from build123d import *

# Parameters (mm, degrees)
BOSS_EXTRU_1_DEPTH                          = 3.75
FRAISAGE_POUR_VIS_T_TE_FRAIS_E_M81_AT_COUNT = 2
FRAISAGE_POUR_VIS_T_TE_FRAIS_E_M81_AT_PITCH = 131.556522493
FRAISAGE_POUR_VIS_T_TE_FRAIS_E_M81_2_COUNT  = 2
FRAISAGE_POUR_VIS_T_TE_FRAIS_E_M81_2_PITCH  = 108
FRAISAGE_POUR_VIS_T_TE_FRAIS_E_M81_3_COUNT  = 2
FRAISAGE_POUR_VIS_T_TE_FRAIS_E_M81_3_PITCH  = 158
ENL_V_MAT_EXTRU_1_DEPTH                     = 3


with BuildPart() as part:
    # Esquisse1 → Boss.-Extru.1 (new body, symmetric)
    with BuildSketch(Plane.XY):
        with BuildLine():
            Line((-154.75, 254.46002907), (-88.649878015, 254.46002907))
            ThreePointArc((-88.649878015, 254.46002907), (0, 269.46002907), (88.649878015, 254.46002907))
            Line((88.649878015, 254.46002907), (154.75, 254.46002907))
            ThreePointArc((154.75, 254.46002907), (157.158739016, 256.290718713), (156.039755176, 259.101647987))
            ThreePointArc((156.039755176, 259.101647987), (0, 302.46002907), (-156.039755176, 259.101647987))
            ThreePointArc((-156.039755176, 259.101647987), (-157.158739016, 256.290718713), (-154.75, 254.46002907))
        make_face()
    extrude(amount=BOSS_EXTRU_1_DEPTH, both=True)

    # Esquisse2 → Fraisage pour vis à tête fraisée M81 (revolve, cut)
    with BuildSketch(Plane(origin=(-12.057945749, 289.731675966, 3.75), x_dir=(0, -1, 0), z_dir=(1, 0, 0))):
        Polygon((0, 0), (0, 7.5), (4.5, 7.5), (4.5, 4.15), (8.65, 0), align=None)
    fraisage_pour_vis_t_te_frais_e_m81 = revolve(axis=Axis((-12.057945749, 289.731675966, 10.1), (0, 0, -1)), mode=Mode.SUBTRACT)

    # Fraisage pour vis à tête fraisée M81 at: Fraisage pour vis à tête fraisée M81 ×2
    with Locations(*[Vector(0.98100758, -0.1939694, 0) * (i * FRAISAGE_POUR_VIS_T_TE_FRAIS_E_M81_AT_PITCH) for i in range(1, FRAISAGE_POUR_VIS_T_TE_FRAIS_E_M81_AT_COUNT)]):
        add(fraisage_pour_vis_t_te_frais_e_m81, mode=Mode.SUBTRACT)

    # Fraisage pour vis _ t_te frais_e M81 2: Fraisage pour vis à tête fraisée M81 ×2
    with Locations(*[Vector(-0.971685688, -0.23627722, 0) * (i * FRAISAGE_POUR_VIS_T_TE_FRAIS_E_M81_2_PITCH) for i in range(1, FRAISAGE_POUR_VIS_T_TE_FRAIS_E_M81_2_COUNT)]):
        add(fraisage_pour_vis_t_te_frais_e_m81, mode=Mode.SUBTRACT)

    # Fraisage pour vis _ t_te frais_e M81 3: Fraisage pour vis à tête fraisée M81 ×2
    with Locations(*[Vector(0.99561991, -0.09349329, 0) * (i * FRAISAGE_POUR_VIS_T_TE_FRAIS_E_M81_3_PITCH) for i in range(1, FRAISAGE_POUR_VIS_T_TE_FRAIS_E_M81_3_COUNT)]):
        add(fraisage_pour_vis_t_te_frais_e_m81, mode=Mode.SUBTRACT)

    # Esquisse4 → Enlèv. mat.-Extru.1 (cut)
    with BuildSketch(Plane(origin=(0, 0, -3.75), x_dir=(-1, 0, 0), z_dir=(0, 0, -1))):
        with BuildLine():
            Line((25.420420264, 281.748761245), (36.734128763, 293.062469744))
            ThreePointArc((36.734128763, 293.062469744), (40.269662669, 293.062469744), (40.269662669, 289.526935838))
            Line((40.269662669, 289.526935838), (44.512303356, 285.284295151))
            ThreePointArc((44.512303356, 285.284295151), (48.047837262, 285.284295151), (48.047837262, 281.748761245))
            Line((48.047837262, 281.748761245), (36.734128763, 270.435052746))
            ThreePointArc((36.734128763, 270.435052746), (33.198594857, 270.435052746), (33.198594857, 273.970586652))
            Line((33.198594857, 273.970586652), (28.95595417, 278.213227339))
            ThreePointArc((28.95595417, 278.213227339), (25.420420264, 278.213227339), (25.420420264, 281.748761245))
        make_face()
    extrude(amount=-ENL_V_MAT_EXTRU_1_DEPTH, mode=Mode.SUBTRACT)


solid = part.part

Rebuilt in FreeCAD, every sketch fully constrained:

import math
import FreeCAD as App
import Part
import Sketcher

V = App.Vector
Q = App.Units.Quantity


def add_polygon(sketch, points):
    """Adds a closed chain of lines whose ends are joined by coincident constraints."""
    first, n = sketch.GeometryCount, len(points)
    for a, b in zip(points, points[1:] + points[:1]):
        sketch.addGeometry(Part.LineSegment(App.Vector(*a, 0), App.Vector(*b, 0)), False)
    for i in range(n):
        sketch.addConstraint(Sketcher.Constraint("Coincident", first + i, 2, first + (i + 1) % n, 1))

doc = App.newDocument("Part")
body = doc.addObject("PartDesign::Body", "Body")

# Sketch on XY plane
sketch1 = doc.addObject("Sketcher::SketchObject", "Sketch")
body.addObject(sketch1)
sketch1.AttachmentSupport = (doc.XY_Plane, [""])
sketch1.MapMode = "FlatFace"
sketch1.addGeometry([
    Part.LineSegment(V(-154.8, 254.5, 0), V(-88.6, 254.5, 0)),  # 0
    Part.ArcOfCircle(Part.Circle(V(0, 0, 0), V(0, 0, 1), 269.5), math.radians(71), math.radians(109)),  # 1
    Part.LineSegment(V(88.6, 254.5, 0), V(154.8, 254.5, 0)),  # 2
    Part.ArcOfCircle(Part.Circle(V(154.8, 257, 0), V(0, 0, 1), 2.5), math.radians(-90), math.radians(59)),  # 3
    Part.ArcOfCircle(Part.Circle(V(0, 0, 0), V(0, 0, 1), 302.5), math.radians(59), math.radians(121)),  # 4
    Part.ArcOfCircle(Part.Circle(V(-154.8, 257, 0), V(0, 0, 1), 2.5), math.radians(121), math.radians(270)),  # 5
], False)
sketch1.addConstraint([
    Sketcher.Constraint("Coincident", 0, 2, 1, 2),
    Sketcher.Constraint("Coincident", 1, 1, 2, 1),
    Sketcher.Constraint("Tangent", 2, 2, 3, 1),
    Sketcher.Constraint("Tangent", 3, 2, 4, 1),
    Sketcher.Constraint("Tangent", 4, 2, 5, 1),
    Sketcher.Constraint("Tangent", 5, 2, 0, 1),
    Sketcher.Constraint("Horizontal", 0),
    Sketcher.Constraint("Horizontal", 2),
    Sketcher.Constraint("Coincident", 1, 3, -1, 1),
    Sketcher.Constraint("Coincident", 4, 3, -1, 1),
    Sketcher.Constraint("Equal", 3, 5),
    Sketcher.Constraint("Horizontal", 3, 3, 5, 3),
    Sketcher.Constraint("Radius", 3, Q("2.5 mm")),
    Sketcher.Constraint("DistanceX", 5, 3, 3, 3, Q("309.5 mm")),
    Sketcher.Constraint("Radius", 1, Q("269.460029 mm")),
    Sketcher.Constraint("Radius", 4, Q("302.460029 mm")),
])
pad1 = doc.addObject("PartDesign::Pad", "Pad")
body.addObject(pad1)
pad1.Profile = sketch1
pad1.Length = 7.5
pad1.Midplane = True

# Sketch on YZ plane
sketch2 = doc.addObject("Sketcher::SketchObject", "Sketch001")
body.addObject(sketch2)
sketch2.AttachmentSupport = (doc.YZ_Plane, [""])
sketch2.MapMode = "FlatFace"
sketch2.AttachmentOffset = App.Placement(V(0, 0, -12.057946), App.Rotation())
add_polygon(sketch2, [(289.7, -3.8), (289.7, 3.8), (281.1, 3.8), (285.2, -0.4), (285.2, -3.8)])  # lines 0-4
sketch2.addGeometry(Part.LineSegment(V(289.7, 3.8, 0), V(289.7, -3.8, 0)), True)  # axis
sketch2.addConstraint([
    Sketcher.Constraint("Vertical", 0),
    Sketcher.Constraint("Horizontal", 1),
    Sketcher.Constraint("Vertical", 3),
    Sketcher.Constraint("Horizontal", 4),
    Sketcher.Constraint("Vertical", 5),
    Sketcher.Constraint("Coincident", 5, 1, 0, 2),
    Sketcher.Constraint("Horizontal", 3, 2, 5, 2),
    Sketcher.Constraint("Angle", 2, Q("-45 deg")),
    Sketcher.Constraint("DistanceX", 4, 1, 4, 2, Q("4.5 mm")),
    Sketcher.Constraint("DistanceY", 0, 1, 0, 2, Q("7.5 mm")),
    Sketcher.Constraint("DistanceX", 1, 2, 1, 1, Q("8.65 mm")),
    Sketcher.Constraint("DistanceY", 2, 2, -1, 1, Q("0.4 mm")),
    Sketcher.Constraint("DistanceX", -1, 1, 0, 2, Q("289.731676 mm")),
])
groove = doc.addObject("PartDesign::Groove", "Groove")
body.addObject(groove)
groove.Profile = sketch2
groove.ReferenceAxis = (sketch2, ["Axis0"])
groove.Angle = 360
doc.recompute()

datumline = doc.addObject("PartDesign::Line", "DatumLine")
body.addObject(datumline)
datumline.Placement = App.Placement(V(0, 0, 0), App.Rotation(V(0, 0, 1), V(0.98100758, -0.1939694, 0)))
linearpattern = doc.addObject("PartDesign::LinearPattern", "LinearPattern")
body.addObject(linearpattern)
linearpattern.Originals = [groove]
linearpattern.Direction = (datumline, [""])
linearpattern.Mode = "offset"
linearpattern.Offset = 131.556523
linearpattern.Occurrences = 2
body.Tip = linearpattern
doc.recompute()

datumline2 = doc.addObject("PartDesign::Line", "DatumLine001")
body.addObject(datumline2)
datumline2.Placement = App.Placement(V(0, 0, 0), App.Rotation(V(0, 0, 1), V(-0.971685688, -0.23627722, 0)))
linearpattern2 = doc.addObject("PartDesign::LinearPattern", "LinearPattern001")
body.addObject(linearpattern2)
linearpattern2.Originals = [groove]
linearpattern2.Direction = (datumline2, [""])
linearpattern2.Mode = "offset"
linearpattern2.Offset = 108
linearpattern2.Occurrences = 2
body.Tip = linearpattern2
doc.recompute()

datumline3 = doc.addObject("PartDesign::Line", "DatumLine002")
body.addObject(datumline3)
datumline3.Placement = App.Placement(V(0, 0, 0), App.Rotation(V(0, 0, 1), V(0.99561991, -0.09349329, 0)))
linearpattern3 = doc.addObject("PartDesign::LinearPattern", "LinearPattern002")
body.addObject(linearpattern3)
linearpattern3.Originals = [groove]
linearpattern3.Direction = (datumline3, [""])
linearpattern3.Mode = "offset"
linearpattern3.Offset = 158
linearpattern3.Occurrences = 2
body.Tip = linearpattern3

# Sketch on XY plane
sketch3 = doc.addObject("Sketcher::SketchObject", "Sketch002")
body.addObject(sketch3)
sketch3.AttachmentSupport = (doc.XY_Plane, [""])
sketch3.MapMode = "FlatFace"
sketch3.AttachmentOffset = App.Placement(V(0, 0, -3.75), App.Rotation())
sketch3.addGeometry([
    Part.LineSegment(V(-36.7, 293.1, 0), V(-25.4, 281.7, 0)),  # 0
    Part.ArcOfCircle(Part.Circle(V(-27.2, 280, 0), V(0, 0, 1), 2.5), math.radians(-135), math.radians(45)),  # 1
    Part.LineSegment(V(-29, 278.2, 0), V(-33.2, 274, 0)),  # 2
    Part.ArcOfCircle(Part.Circle(V(-35, 272.2, 0), V(0, 0, 1), 2.5), math.radians(-135), math.radians(45)),  # 3
    Part.LineSegment(V(-36.7, 270.4, 0), V(-48, 281.7, 0)),  # 4
    Part.ArcOfCircle(Part.Circle(V(-46.3, 283.5, 0), V(0, 0, 1), 2.5), math.radians(45), math.radians(225)),  # 5
    Part.LineSegment(V(-44.5, 285.3, 0), V(-40.3, 289.5, 0)),  # 6
    Part.ArcOfCircle(Part.Circle(V(-38.5, 291.3, 0), V(0, 0, 1), 2.5), math.radians(45), math.radians(225)),  # 7
], False)
sketch3.addConstraint([
    Sketcher.Constraint("Tangent", 0, 2, 1, 2),
    Sketcher.Constraint("Coincident", 1, 1, 2, 1),
    Sketcher.Constraint("Coincident", 2, 2, 3, 2),
    Sketcher.Constraint("Tangent", 3, 1, 4, 1),
    Sketcher.Constraint("Tangent", 4, 2, 5, 2),
    Sketcher.Constraint("Coincident", 5, 1, 6, 1),
    Sketcher.Constraint("Coincident", 6, 2, 7, 2),
    Sketcher.Constraint("Tangent", 7, 1, 0, 1),
    Sketcher.Constraint("Equal", 1, 3),
    Sketcher.Constraint("Equal", 3, 5),
    Sketcher.Constraint("Equal", 5, 7),
    Sketcher.Constraint("Perpendicular", 0, 2),
    Sketcher.Constraint("Perpendicular", 2, 4),
    Sketcher.Constraint("Perpendicular", 4, 6),
    Sketcher.Constraint("Horizontal", 0, 2, 4, 2),
    Sketcher.Constraint("Vertical", 3, 1, 7, 1),
    Sketcher.Constraint("Equal", 0, 4),
    Sketcher.Constraint("Radius", 1, Q("2.5 mm")),
    Sketcher.Constraint("Angle", 0, Q("-45 deg")),
    Sketcher.Constraint("Distance", 0, Q("16 mm")),
    Sketcher.Constraint("DistanceY", 1, 1, 5, 3, Q("5.303301 mm")),
    Sketcher.Constraint("DistanceX", 3, 3, -1, 1, Q("34.966362 mm")),
    Sketcher.Constraint("DistanceY", -1, 1, 3, 3, Q("272.20282 mm")),
    Sketcher.Constraint("DistanceX", 5, 1, 2, 2, Q("11.313708 mm")),
])
pocket1 = doc.addObject("PartDesign::Pocket", "Pocket")
body.addObject(pocket1)
pocket1.Profile = sketch3
pocket1.Length = 3
pocket1.Reversed = True

doc.recompute()
